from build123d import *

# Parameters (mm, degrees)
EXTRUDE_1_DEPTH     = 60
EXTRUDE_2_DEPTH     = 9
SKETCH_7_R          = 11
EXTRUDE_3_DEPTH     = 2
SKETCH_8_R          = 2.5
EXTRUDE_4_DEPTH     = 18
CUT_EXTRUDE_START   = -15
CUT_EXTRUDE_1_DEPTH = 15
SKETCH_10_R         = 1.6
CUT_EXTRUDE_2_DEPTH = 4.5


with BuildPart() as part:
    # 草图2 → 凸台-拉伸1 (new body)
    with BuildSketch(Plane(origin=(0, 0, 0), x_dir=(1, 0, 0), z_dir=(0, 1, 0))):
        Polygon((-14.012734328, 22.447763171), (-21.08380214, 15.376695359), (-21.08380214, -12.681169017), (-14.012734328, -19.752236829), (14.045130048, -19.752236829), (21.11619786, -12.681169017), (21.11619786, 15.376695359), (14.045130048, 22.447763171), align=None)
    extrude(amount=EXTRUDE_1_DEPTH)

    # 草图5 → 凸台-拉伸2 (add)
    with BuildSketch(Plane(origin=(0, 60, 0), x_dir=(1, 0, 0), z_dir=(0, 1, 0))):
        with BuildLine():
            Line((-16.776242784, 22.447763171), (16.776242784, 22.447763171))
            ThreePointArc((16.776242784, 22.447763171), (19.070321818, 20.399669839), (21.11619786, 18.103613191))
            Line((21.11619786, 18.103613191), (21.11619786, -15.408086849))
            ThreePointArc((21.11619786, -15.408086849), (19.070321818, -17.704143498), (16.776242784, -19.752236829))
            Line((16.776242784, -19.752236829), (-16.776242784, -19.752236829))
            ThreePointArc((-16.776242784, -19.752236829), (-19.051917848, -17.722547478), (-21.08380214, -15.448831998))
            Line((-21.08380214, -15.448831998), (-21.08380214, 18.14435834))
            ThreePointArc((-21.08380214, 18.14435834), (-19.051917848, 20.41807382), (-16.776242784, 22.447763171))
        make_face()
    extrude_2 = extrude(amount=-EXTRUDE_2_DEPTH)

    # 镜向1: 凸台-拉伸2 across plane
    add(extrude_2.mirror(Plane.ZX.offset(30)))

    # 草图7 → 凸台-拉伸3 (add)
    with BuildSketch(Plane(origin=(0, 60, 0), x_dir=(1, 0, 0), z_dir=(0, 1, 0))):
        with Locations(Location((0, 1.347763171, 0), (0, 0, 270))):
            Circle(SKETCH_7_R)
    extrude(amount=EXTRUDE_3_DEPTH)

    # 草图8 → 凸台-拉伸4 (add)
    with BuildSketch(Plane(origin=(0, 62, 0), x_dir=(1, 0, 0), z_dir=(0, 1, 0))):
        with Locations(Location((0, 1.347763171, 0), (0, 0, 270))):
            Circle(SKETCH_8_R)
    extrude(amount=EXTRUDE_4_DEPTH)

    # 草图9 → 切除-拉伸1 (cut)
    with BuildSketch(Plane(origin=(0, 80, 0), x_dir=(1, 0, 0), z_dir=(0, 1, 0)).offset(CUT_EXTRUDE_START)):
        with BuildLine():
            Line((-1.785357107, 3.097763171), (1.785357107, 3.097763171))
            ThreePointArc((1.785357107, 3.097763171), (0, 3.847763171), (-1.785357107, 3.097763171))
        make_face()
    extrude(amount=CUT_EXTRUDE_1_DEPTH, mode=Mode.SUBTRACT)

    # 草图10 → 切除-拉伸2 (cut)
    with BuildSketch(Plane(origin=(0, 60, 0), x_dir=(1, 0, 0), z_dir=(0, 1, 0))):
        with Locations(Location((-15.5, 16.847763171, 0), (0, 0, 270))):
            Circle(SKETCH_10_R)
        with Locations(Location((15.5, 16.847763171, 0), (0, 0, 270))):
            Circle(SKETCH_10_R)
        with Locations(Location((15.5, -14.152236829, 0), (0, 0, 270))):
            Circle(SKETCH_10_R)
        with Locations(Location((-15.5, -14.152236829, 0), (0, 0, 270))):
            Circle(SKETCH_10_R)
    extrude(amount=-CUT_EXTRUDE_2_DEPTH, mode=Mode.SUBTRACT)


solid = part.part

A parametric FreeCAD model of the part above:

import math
import FreeCAD as App
import Part
import Sketcher

V = App.Vector

doc = App.newDocument("Part")
body = doc.addObject("PartDesign::Body", "Body")

# Sketch on XZ plane
sketch1 = body.newObject("Sketcher::SketchObject", "Sketch")
sketch1.AttachmentSupport = (doc.getObject("XZ_Plane"), [""])
sketch1.MapMode = "FlatFace"
sketch1.addGeometry([
    Part.LineSegment(V(-14, -22, 0), V(-21, -15, 0)),  # 0
    Part.LineSegment(V(-21, -15, 0), V(-21, 13, 0)),  # 1
    Part.LineSegment(V(-21, 13, 0), V(-14, 20, 0)),  # 2
    Part.LineSegment(V(-14, 20, 0), V(14, 20, 0)),  # 3
    Part.LineSegment(V(14, 20, 0), V(21, 13, 0)),  # 4
    Part.LineSegment(V(21, 13, 0), V(21, -15, 0)),  # 5
    Part.LineSegment(V(21, -15, 0), V(14, -22, 0)),  # 6
    Part.LineSegment(V(14, -22, 0), V(-14, -22, 0)),  # 7
], False)
sketch1.addConstraint([
    Sketcher.Constraint("Coincident", 0, 2, 1, 1),
    Sketcher.Constraint("Coincident", 1, 2, 2, 1),
    Sketcher.Constraint("Coincident", 2, 2, 3, 1),
    Sketcher.Constraint("Coincident", 3, 2, 4, 1),
    Sketcher.Constraint("Coincident", 4, 2, 5, 1),
    Sketcher.Constraint("Coincident", 5, 2, 6, 1),
    Sketcher.Constraint("Coincident", 6, 2, 7, 1),
    Sketcher.Constraint("Coincident", 7, 2, 0, 1),
    Sketcher.Constraint("Vertical", 1),
    Sketcher.Constraint("Horizontal", 3),
    Sketcher.Constraint("Vertical", 5),
    Sketcher.Constraint("Horizontal", 7),
    Sketcher.Constraint("Perpendicular", 0, 2),
    Sketcher.Constraint("Perpendicular", 2, 4),
    Sketcher.Constraint("Perpendicular", 4, 6),
    Sketcher.Constraint("Horizontal", 1, 2, 4, 2),
    Sketcher.Constraint("Horizontal", 0, 2, 5, 2),
    Sketcher.Constraint("Vertical", 3, 2, 6, 2),
    Sketcher.Constraint("Vertical", 2, 2, 7, 2),
    Sketcher.Constraint("Equal", 7, 1),
    Sketcher.Constraint("Distance", 0, 10.0),
    Sketcher.Constraint("DistanceX", 1, 2, 4, 2, 42.2),
    Sketcher.Constraint("DistanceY", -1, 1, 1, 2, 12.681169),
    Sketcher.Constraint("DistanceX", -1, 1, 3, 2, 14.04513),
])
pad1 = body.newObject("PartDesign::Pad", "Pad")
pad1.Profile = sketch1
pad1.Length = 60
pad1.Reversed = True

# Sketch on XZ plane
sketch2 = body.newObject("Sketcher::SketchObject", "Sketch001")
sketch2.AttachmentSupport = (doc.getObject("XZ_Plane"), [""])
sketch2.MapMode = "FlatFace"
sketch2.AttachmentOffset = App.Placement(V(0, 0, -60), App.Rotation())
sketch2.addGeometry([
    Part.LineSegment(V(17, -22, 0), V(-17, -22, 0)),  # 0
    Part.ArcOfCircle(Part.Circle(V(0, -1, 0), V(0, 0, 1), 27), math.radians(-141.46), math.radians(-128.49)),  # 1
    Part.LineSegment(V(-21, -18, 0), V(-21, 15, 0)),  # 2
    Part.ArcOfCircle(Part.Circle(V(0, -1, 0), V(0, 0, 1), 27), math.radians(128.49), math.radians(141.46)),  # 3
    Part.LineSegment(V(-17, 20, 0), V(17, 20, 0)),  # 4
    Part.ArcOfCircle(Part.Circle(V(0, -1, 0), V(0, 0, 1), 27), math.radians(38.43), math.radians(51.51)),  # 5
    Part.LineSegment(V(21, 15, 0), V(21, -18, 0)),  # 6
    Part.ArcOfCircle(Part.Circle(V(0, -1, 0), V(0, 0, 1), 27), math.radians(-51.51), math.radians(-38.43)),  # 7
], False)
sketch2.addConstraint([
    Sketcher.Constraint("Coincident", 0, 2, 1, 2),
    Sketcher.Constraint("Coincident", 1, 1, 2, 1),
    Sketcher.Constraint("Coincident", 2, 2, 3, 2),
    Sketcher.Constraint("Coincident", 3, 1, 4, 1),
    Sketcher.Constraint("Coincident", 4, 2, 5, 2),
    Sketcher.Constraint("Coincident", 5, 1, 6, 1),
    Sketcher.Constraint("Coincident", 6, 2, 7, 2),
    Sketcher.Constraint("Coincident", 7, 1, 0, 1),
    Sketcher.Constraint("Horizontal", 0),
    Sketcher.Constraint("Vertical", 2),
    Sketcher.Constraint("Horizontal", 4),
    Sketcher.Constraint("Vertical", 6),
    Sketcher.Constraint("Coincident", 3, 3, 1, 3),
    Sketcher.Constraint("Coincident", 5, 3, 1, 3),
    Sketcher.Constraint("Coincident", 7, 3, 1, 3),
    Sketcher.Constraint("Equal", 1, 3),
    Sketcher.Constraint("Equal", 3, 5),
    Sketcher.Constraint("Equal", 5, 7),
    Sketcher.Constraint("PointOnObject", 1, 3, -2),
    Sketcher.Constraint("Vertical", 0, 2, 3, 1),
    Sketcher.Constraint("DistanceY", 0, 2, 3, 3, 21.1),
    Sketcher.Constraint("Radius", 1, 26.956489),
    Sketcher.Constraint("DistanceY", 6, 2, 6, 1, 33.5117),
    Sketcher.Constraint("DistanceY", 2, 1, 2, 2, 33.59319),
    Sketcher.Constraint("DistanceY", 1, 1, -1, 1, 18.144358),
])
pad2 = body.newObject("PartDesign::Pad", "Pad001")
pad2.Profile = sketch2
pad2.Length = 9
doc.recompute()

datumplane = body.newObject("PartDesign::Plane", "DatumPlane")
datumplane.AttachmentSupport = (doc.getObject("XZ_Plane"), [""])
datumplane.MapMode = "FlatFace"
datumplane.AttachmentOffset = App.Placement(V(0, 0, -30), App.Rotation())
mirrored = body.newObject("PartDesign::Mirrored", "Mirrored")
mirrored.Originals = [pad2]
mirrored.MirrorPlane = (datumplane, [""])
body.Tip = mirrored

# Sketch on XZ plane
sketch3 = body.newObject("Sketcher::SketchObject", "Sketch002")
sketch3.AttachmentSupport = (doc.getObject("XZ_Plane"), [""])
sketch3.MapMode = "FlatFace"
sketch3.AttachmentOffset = App.Placement(V(0, 0, -60), App.Rotation())
sketch3.addGeometry(Part.Circle(V(0, -1, 0), V(0, 0, 1), 11), False)
sketch3.addConstraint([
    Sketcher.Constraint("PointOnObject", 0, 3, -2),
    Sketcher.Constraint("Diameter", 0, 22.0),
    Sketcher.Constraint("DistanceY", 0, 3, -1, 1, 1.347763),
])
pad3 = body.newObject("PartDesign::Pad", "Pad002")
pad3.Profile = sketch3
pad3.Length = 2
pad3.Reversed = True

# Sketch on XZ plane
sketch4 = body.newObject("Sketcher::SketchObject", "Sketch003")
sketch4.AttachmentSupport = (doc.getObject("XZ_Plane"), [""])
sketch4.MapMode = "FlatFace"
sketch4.AttachmentOffset = App.Placement(V(0, 0, -62), App.Rotation())
sketch4.addGeometry(Part.Circle(V(0, -1.3, 0), V(0, 0, 1), 2.5), False)
sketch4.addConstraint([
    Sketcher.Constraint("PointOnObject", 0, 3, -2),
    Sketcher.Constraint("Diameter", 0, 5.0),
    Sketcher.Constraint("DistanceY", 0, 3, -1, 1, 1.347763),
])
pad4 = body.newObject("PartDesign::Pad", "Pad003")
pad4.Profile = sketch4
pad4.Length = 18
pad4.Reversed = True

# Sketch on XZ plane
sketch5 = body.newObject("Sketcher::SketchObject", "Sketch004")
sketch5.AttachmentSupport = (doc.getObject("XZ_Plane"), [""])
sketch5.MapMode = "FlatFace"
sketch5.AttachmentOffset = App.Placement(V(0, 0, -65), App.Rotation())
sketch5.addGeometry([
    Part.LineSegment(V(-1.8, -3.1, 0), V(1.8, -3.1, 0)),
    Part.ArcOfCircle(Part.Circle(V(0, -1.3, 0), V(0, 0, 1), 2.5), math.radians(-136), math.radians(-44)),
], False)
sketch5.addConstraint([
    Sketcher.Constraint("Coincident", 0, 1, 1, 1),
    Sketcher.Constraint("Coincident", 1, 2, 0, 2),
    Sketcher.Constraint("Horizontal", 0),
    Sketcher.Constraint("PointOnObject", 1, 3, -2),
    Sketcher.Constraint("Radius", 1, 2.5),
    Sketcher.Constraint("DistanceY", 0, 1, 1, 3, 1.75),
    Sketcher.Constraint("DistanceY", 1, 3, -1, 1, 1.347763),
])
pocket1 = body.newObject("PartDesign::Pocket", "Pocket")
pocket1.Profile = sketch5
pocket1.Length = 15

# Sketch on XZ plane
sketch6 = body.newObject("Sketcher::SketchObject", "Sketch005")
sketch6.AttachmentSupport = (doc.getObject("XZ_Plane"), [""])
sketch6.MapMode = "FlatFace"
sketch6.AttachmentOffset = App.Placement(V(0, 0, -60), App.Rotation())
sketch6.addGeometry([
    Part.Circle(V(-15.5, -16.8, 0), V(0, 0, 1), 1.6),
    Part.Circle(V(15.5, -16.8, 0), V(0, 0, 1), 1.6),
    Part.Circle(V(15.5, 14.2, 0), V(0, 0, 1), 1.6),
    Part.Circle(V(-15.5, 14.2, 0), V(0, 0, 1), 1.6),
], False)
sketch6.addConstraint([
    Sketcher.Constraint("Equal", 0, 1),
    Sketcher.Constraint("Equal", 1, 2),
    Sketcher.Constraint("Equal", 2, 3),
    Sketcher.Constraint("Symmetric", 0, 3, 1, 3, -2),
    Sketcher.Constraint("Symmetric", 2, 3, 3, 3, -2),
    Sketcher.Constraint("Vertical", 1, 3, 2, 3),
    Sketcher.Constraint("Diameter", 0, 3.2),
    Sketcher.Constraint("DistanceX", 0, 3, 1, 3, 31.0),
    Sketcher.Constraint("DistanceY", 1, 3, 2, 3, 31.0),
    Sketcher.Constraint("DistanceY", 0, 3, -1, 1, 16.847763),
])
pocket2 = body.newObject("PartDesign::Pocket", "Pocket001")
pocket2.Profile = sketch6
pocket2.Length = 4.5
pocket2.Reversed = True

doc.recompute()
